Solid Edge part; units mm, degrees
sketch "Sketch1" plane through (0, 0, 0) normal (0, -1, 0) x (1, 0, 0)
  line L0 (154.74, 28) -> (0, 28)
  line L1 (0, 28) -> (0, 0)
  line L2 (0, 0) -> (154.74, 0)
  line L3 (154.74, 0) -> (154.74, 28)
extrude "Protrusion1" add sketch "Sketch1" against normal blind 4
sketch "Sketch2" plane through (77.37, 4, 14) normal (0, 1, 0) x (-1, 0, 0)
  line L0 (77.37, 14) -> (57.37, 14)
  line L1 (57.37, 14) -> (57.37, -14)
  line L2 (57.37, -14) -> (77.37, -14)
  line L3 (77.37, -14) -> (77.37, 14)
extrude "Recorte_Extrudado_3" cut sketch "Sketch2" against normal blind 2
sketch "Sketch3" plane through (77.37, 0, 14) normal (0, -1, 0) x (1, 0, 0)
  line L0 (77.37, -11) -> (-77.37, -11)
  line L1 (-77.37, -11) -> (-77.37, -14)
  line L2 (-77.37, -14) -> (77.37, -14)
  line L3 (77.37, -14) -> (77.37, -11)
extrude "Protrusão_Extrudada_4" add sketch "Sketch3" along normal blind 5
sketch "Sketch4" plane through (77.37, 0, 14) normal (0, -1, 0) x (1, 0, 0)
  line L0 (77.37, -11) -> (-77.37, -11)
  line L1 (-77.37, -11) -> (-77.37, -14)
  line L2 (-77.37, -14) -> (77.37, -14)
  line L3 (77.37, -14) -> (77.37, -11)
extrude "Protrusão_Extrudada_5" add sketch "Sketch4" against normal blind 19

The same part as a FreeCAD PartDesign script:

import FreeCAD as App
import Part
import Sketcher
from FreeCAD import Vector
Q = App.Units.Quantity

doc = App.newDocument("Part")
body = doc.addObject("PartDesign::Body", "Body")

# Sketch on XZ plane
sketch1 = doc.addObject("Sketcher::SketchObject", "Sketch")
body.addObject(sketch1)
sketch1.AttachmentSupport = (doc.XZ_Plane, [""])
sketch1.MapMode = "FlatFace"
sketch1.addGeometry([
    Part.LineSegment(Vector(154.74, 0, 0), Vector(154.74, 28, 0)),
    Part.LineSegment(Vector(154.74, 28, 0), Vector(0, 28, 0)),
    Part.LineSegment(Vector(0, 28, 0), Vector(0, 0, 0)),
    Part.LineSegment(Vector(0, 0, 0), Vector(154.74, 0, 0)),
], False)
sketch1.addConstraint([
    Sketcher.Constraint("Coincident", 0, 2, 1, 1),
    Sketcher.Constraint("Coincident", 1, 2, 2, 1),
    Sketcher.Constraint("Coincident", 2, 2, 3, 1),
    Sketcher.Constraint("Coincident", 3, 2, 0, 1),
    Sketcher.Constraint("Vertical", 0),
    Sketcher.Constraint("Horizontal", 1),
    Sketcher.Constraint("Vertical", 2),
    Sketcher.Constraint("Horizontal", 3),
    Sketcher.Constraint("Coincident", 2, 2, -1, 1),
    Sketcher.Constraint("DistanceY", 0, 1, 0, 2, Q("28 mm")),
    Sketcher.Constraint("DistanceX", 1, 2, 1, 1, Q("154.74 mm")),
])
pad1 = doc.addObject("PartDesign::Pad", "Pad")
body.addObject(pad1)
pad1.Profile = sketch1
pad1.Length = 4
pad1.Reversed = True

# Sketch on XZ plane
sketch2 = doc.addObject("Sketcher::SketchObject", "Sketch001")
body.addObject(sketch2)
sketch2.AttachmentSupport = (doc.XZ_Plane, [""])
sketch2.MapMode = "FlatFace"
sketch2.AttachmentOffset = App.Placement(Vector(0, 0, -4), App.Rotation())
sketch2.addGeometry([
    Part.LineSegment(Vector(0, 0, 0), Vector(0, 28, 0)),
    Part.LineSegment(Vector(0, 28, 0), Vector(20, 28, 0)),
    Part.LineSegment(Vector(20, 28, 0), Vector(20, 0, 0)),
    Part.LineSegment(Vector(20, 0, 0), Vector(0, 0, 0)),
], False)
sketch2.addConstraint([
    Sketcher.Constraint("Coincident", 0, 2, 1, 1),
    Sketcher.Constraint("Coincident", 1, 2, 2, 1),
    Sketcher.Constraint("Coincident", 2, 2, 3, 1),
    Sketcher.Constraint("Coincident", 3, 2, 0, 1),
    Sketcher.Constraint("Vertical", 0),
    Sketcher.Constraint("Horizontal", 1),
    Sketcher.Constraint("Vertical", 2),
    Sketcher.Constraint("Horizontal", 3),
    Sketcher.Constraint("Coincident", 3, 2, -1, 1),
    Sketcher.Constraint("DistanceX", 1, 1, 1, 2, Q("20 mm")),
    Sketcher.Constraint("DistanceY", 0, 1, 0, 2, Q("28 mm")),
])
pocket1 = doc.addObject("PartDesign::Pocket", "Pocket")
body.addObject(pocket1)
pocket1.Profile = sketch2
pocket1.Length = 2
pocket1.Reversed = True

# Sketch on XZ plane
sketch3 = doc.addObject("Sketcher::SketchObject", "Sketch002")
body.addObject(sketch3)
sketch3.AttachmentSupport = (doc.XZ_Plane, [""])
sketch3.MapMode = "FlatFace"
sketch3.addGeometry([
    Part.LineSegment(Vector(154.74, 0, 0), Vector(154.74, 3, 0)),
    Part.LineSegment(Vector(154.74, 3, 0), Vector(0, 3, 0)),
    Part.LineSegment(Vector(0, 3, 0), Vector(0, 0, 0)),
    Part.LineSegment(Vector(0, 0, 0), Vector(154.74, 0, 0)),
], False)
sketch3.addConstraint([
    Sketcher.Constraint("Coincident", 0, 2, 1, 1),
    Sketcher.Constraint("Coincident", 1, 2, 2, 1),
    Sketcher.Constraint("Coincident", 2, 2, 3, 1),
    Sketcher.Constraint("Coincident", 3, 2, 0, 1),
    Sketcher.Constraint("Vertical", 0),
    Sketcher.Constraint("Horizontal", 1),
    Sketcher.Constraint("Vertical", 2),
    Sketcher.Constraint("Horizontal", 3),
    Sketcher.Constraint("Coincident", 2, 2, -1, 1),
    Sketcher.Constraint("DistanceY", 0, 1, 0, 2, Q("3 mm")),
    Sketcher.Constraint("DistanceX", 1, 2, 1, 1, Q("154.74 mm")),
])
pad2 = doc.addObject("PartDesign::Pad", "Pad001")
body.addObject(pad2)
pad2.Profile = sketch3
pad2.Length = 5

# Sketch on XZ plane
sketch4 = doc.addObject("Sketcher::SketchObject", "Sketch003")
body.addObject(sketch4)
sketch4.AttachmentSupport = (doc.XZ_Plane, [""])
sketch4.MapMode = "FlatFace"
sketch4.addGeometry([
    Part.LineSegment(Vector(154.74, 0, 0), Vector(154.74, 3, 0)),
    Part.LineSegment(Vector(154.74, 3, 0), Vector(0, 3, 0)),
    Part.LineSegment(Vector(0, 3, 0), Vector(0, 0, 0)),
    Part.LineSegment(Vector(0, 0, 0), Vector(154.74, 0, 0)),
], False)
sketch4.addConstraint([
    Sketcher.Constraint("Coincident", 0, 2, 1, 1),
    Sketcher.Constraint("Coincident", 1, 2, 2, 1),
    Sketcher.Constraint("Coincident", 2, 2, 3, 1),
    Sketcher.Constraint("Coincident", 3, 2, 0, 1),
    Sketcher.Constraint("Vertical", 0),
    Sketcher.Constraint("Horizontal", 1),
    Sketcher.Constraint("Vertical", 2),
    Sketcher.Constraint("Horizontal", 3),
    Sketcher.Constraint("Coincident", 2, 2, -1, 1),
    Sketcher.Constraint("DistanceY", 0, 1, 0, 2, Q("3 mm")),
    Sketcher.Constraint("DistanceX", 1, 2, 1, 1, Q("154.74 mm")),
])
pad3 = doc.addObject("PartDesign::Pad", "Pad002")
body.addObject(pad3)
pad3.Profile = sketch4
pad3.Length = 19
pad3.Reversed = True

doc.recompute()
